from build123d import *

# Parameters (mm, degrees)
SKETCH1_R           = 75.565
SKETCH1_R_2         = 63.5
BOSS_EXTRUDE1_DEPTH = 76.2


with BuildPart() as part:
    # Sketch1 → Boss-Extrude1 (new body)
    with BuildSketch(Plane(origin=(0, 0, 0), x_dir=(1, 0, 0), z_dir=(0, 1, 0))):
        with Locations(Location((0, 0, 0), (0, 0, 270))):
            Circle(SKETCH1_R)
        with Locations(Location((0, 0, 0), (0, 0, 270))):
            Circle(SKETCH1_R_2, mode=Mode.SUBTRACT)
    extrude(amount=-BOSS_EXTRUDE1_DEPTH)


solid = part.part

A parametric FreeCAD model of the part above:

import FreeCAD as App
import Part
import Sketcher
from FreeCAD import Vector
Q = App.Units.Quantity

doc = App.newDocument("Part")
body = doc.addObject("PartDesign::Body", "Body")

# Sketch on XZ plane
sketch1 = body.newObject("Sketcher::SketchObject", "Sketch")
sketch1.AttachmentSupport = (doc.getObject("XZ_Plane"), [""])
sketch1.MapMode = "FlatFace"
sketch1.addGeometry([
    Part.Circle(Vector(0, 0, 0), Vector(0, 0, 1), 75.565),
    Part.Circle(Vector(0, 0, 0), Vector(0, 0, 1), 63.5),
], False)
sketch1.addConstraint([
    Sketcher.Constraint("Coincident", 0, 3, -1, 1),
    Sketcher.Constraint("Coincident", 1, 3, -1, 1),
    Sketcher.Constraint("Diameter", 1, Q("5 in")),
    Sketcher.Constraint("Diameter", 0, Q("5.95 in")),
])
pad1 = body.newObject("PartDesign::Pad", "Pad")
pad1.Profile = sketch1
pad1.Length = Q("3 in")

doc.recompute()
